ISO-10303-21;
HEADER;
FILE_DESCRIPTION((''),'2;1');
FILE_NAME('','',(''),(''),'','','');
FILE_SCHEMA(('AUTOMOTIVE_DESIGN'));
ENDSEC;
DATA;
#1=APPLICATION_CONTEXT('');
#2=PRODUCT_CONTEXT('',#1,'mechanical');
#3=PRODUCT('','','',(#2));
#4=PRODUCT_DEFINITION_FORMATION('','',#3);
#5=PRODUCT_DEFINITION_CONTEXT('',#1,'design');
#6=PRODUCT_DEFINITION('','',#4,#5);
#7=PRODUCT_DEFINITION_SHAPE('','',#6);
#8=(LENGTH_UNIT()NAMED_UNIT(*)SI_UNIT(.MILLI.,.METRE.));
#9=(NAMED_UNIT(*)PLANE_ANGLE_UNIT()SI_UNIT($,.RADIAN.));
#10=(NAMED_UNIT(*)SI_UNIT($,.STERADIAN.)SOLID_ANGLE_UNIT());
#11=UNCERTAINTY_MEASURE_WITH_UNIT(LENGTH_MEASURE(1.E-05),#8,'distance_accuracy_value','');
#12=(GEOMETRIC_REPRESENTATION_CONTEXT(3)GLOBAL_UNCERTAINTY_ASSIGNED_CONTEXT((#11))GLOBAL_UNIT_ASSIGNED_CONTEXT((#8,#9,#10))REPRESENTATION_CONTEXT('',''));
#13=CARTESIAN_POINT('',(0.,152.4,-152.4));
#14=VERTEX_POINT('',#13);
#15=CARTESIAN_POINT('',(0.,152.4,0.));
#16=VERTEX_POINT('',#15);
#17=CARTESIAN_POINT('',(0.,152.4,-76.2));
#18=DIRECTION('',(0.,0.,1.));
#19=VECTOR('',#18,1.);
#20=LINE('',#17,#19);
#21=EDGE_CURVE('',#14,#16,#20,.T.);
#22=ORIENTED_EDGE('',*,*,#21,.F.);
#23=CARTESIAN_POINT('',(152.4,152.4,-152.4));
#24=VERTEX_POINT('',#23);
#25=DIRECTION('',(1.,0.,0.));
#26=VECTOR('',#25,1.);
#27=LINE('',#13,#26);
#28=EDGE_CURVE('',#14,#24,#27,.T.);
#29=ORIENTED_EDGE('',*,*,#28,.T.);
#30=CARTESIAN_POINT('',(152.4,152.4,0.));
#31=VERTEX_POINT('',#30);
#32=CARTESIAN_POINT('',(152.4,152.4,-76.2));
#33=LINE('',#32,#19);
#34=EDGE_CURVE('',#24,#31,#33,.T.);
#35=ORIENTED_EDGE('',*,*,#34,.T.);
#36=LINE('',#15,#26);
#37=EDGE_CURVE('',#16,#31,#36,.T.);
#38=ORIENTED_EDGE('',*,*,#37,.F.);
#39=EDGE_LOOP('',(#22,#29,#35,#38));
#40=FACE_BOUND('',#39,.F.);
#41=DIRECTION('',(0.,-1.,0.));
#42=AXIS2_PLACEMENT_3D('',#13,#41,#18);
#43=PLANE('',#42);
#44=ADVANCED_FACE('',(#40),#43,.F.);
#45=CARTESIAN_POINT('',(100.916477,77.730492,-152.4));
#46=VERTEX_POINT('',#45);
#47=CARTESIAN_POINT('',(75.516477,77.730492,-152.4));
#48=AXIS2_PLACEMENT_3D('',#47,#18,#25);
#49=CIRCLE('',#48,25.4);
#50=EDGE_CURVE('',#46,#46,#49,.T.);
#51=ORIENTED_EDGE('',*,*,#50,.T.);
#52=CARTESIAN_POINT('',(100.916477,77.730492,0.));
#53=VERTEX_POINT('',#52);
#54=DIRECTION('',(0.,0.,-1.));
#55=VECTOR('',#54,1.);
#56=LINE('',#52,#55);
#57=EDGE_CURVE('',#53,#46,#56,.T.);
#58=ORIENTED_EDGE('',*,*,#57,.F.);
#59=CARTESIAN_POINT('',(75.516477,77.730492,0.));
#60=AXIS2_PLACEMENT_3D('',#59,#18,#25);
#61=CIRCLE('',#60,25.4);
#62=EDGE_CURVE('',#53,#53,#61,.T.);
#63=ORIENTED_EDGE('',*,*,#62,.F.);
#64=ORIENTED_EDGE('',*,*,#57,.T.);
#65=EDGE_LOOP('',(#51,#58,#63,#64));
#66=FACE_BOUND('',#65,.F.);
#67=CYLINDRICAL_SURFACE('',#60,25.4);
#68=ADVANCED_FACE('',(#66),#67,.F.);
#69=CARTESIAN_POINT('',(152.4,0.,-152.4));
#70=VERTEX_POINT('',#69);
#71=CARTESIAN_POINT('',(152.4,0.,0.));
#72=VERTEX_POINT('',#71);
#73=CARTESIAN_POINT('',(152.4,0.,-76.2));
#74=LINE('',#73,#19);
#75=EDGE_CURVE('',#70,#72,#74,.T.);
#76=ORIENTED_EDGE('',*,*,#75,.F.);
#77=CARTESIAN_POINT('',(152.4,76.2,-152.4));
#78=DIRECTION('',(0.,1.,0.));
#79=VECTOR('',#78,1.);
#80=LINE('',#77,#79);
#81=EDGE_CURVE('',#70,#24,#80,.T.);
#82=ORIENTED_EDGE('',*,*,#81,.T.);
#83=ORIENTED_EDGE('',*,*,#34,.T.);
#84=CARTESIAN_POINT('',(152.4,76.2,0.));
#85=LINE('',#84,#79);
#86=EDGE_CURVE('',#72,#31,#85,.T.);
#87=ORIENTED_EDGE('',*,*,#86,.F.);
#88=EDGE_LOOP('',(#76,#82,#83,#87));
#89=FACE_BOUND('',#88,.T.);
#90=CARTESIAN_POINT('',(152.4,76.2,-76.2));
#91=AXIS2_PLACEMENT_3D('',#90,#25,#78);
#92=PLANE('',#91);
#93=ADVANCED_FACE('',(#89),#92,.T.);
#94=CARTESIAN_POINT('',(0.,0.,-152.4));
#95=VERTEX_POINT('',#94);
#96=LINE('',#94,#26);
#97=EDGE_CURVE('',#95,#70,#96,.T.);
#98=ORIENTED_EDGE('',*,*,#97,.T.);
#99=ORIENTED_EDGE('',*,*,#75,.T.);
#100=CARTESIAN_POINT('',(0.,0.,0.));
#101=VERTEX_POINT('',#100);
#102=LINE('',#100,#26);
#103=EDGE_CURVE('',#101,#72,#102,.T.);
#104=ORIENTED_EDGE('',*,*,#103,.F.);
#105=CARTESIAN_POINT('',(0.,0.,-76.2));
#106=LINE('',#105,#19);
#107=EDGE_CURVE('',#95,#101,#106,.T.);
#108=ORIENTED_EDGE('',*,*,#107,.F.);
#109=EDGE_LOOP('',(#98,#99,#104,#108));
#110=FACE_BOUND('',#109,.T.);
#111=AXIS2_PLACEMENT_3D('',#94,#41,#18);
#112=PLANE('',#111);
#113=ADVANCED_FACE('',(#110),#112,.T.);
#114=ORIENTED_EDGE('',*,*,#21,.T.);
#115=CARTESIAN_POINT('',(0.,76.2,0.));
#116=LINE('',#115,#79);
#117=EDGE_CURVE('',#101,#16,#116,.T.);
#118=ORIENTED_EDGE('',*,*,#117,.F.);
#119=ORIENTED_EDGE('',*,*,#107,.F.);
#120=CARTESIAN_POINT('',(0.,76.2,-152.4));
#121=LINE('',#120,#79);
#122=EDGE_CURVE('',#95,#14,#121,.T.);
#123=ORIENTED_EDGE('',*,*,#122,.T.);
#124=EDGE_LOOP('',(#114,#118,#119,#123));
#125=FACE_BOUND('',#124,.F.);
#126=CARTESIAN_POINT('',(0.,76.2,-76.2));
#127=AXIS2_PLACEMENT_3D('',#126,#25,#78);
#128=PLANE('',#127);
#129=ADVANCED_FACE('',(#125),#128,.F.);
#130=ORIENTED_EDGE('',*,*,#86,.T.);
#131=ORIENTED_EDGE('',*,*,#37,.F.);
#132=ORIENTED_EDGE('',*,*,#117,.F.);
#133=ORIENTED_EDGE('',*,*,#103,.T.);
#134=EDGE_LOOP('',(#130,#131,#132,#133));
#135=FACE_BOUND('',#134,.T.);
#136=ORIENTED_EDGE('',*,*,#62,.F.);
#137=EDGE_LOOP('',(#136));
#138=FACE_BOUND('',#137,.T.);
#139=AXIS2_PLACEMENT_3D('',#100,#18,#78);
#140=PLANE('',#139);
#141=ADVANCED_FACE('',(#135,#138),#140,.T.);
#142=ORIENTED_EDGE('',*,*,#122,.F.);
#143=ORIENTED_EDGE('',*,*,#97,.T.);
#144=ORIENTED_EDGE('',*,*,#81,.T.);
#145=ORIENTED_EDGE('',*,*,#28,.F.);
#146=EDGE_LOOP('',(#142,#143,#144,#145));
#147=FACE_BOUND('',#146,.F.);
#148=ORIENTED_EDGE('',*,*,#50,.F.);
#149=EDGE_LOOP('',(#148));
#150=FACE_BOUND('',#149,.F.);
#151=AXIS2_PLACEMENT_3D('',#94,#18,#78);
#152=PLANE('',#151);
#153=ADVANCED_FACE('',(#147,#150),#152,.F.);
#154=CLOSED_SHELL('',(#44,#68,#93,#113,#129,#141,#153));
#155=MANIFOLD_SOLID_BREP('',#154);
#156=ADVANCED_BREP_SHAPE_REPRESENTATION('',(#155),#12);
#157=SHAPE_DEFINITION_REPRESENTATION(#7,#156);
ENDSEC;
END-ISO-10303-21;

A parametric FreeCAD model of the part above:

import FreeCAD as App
import Part
import Sketcher

V = App.Vector
Q = App.Units.Quantity


def add_polygon(sketch, points):
    """Adds a closed chain of lines whose ends are joined by coincident constraints."""
    first, n = sketch.GeometryCount, len(points)
    for a, b in zip(points, points[1:] + points[:1]):
        sketch.addGeometry(Part.LineSegment(App.Vector(*a, 0), App.Vector(*b, 0)), False)
    for i in range(n):
        sketch.addConstraint(Sketcher.Constraint("Coincident", first + i, 2, first + (i + 1) % n, 1))

doc = App.newDocument("Part")
body = doc.addObject("PartDesign::Body", "Body")

# Sketch on YZ plane
sketch1 = body.newObject("Sketcher::SketchObject", "Sketch")
sketch1.AttachmentSupport = (doc.getObject("YZ_Plane"), [""])
sketch1.MapMode = "FlatFace"
add_polygon(sketch1, [(0, 0), (0, -152), (152, -152), (152, 0)])  # lines 0-3
sketch1.addConstraint([
    Sketcher.Constraint("Vertical", 0),
    Sketcher.Constraint("Horizontal", 1),
    Sketcher.Constraint("Vertical", 2),
    Sketcher.Constraint("Horizontal", 3),
    Sketcher.Constraint("Coincident", 3, 2, -1, 1),
    Sketcher.Constraint("Equal", 3, 0),
    Sketcher.Constraint("DistanceX", 1, 1, 1, 2, Q("6 in")),
])
pad1 = body.newObject("PartDesign::Pad", "Pad")
pad1.Profile = sketch1
pad1.Length = Q("6 in")

# Sketch on XY plane
sketch2 = body.newObject("Sketcher::SketchObject", "Sketch001")
sketch2.AttachmentSupport = (doc.getObject("XY_Plane"), [""])
sketch2.MapMode = "FlatFace"
sketch2.addGeometry(Part.Circle(V(76, 78, 0), V(0, 0, 1), 25), False)
sketch2.addConstraint([
    Sketcher.Constraint("Diameter", 0, Q("2 in")),
    Sketcher.Constraint("DistanceY", -1, 1, 0, 3, 77.730492),
    Sketcher.Constraint("DistanceX", -1, 1, 0, 3, 75.516477),
])
pocket1 = body.newObject("PartDesign::Pocket", "Pocket")
pocket1.Profile = sketch2
pocket1.Type = "ThroughAll"

doc.recompute()
